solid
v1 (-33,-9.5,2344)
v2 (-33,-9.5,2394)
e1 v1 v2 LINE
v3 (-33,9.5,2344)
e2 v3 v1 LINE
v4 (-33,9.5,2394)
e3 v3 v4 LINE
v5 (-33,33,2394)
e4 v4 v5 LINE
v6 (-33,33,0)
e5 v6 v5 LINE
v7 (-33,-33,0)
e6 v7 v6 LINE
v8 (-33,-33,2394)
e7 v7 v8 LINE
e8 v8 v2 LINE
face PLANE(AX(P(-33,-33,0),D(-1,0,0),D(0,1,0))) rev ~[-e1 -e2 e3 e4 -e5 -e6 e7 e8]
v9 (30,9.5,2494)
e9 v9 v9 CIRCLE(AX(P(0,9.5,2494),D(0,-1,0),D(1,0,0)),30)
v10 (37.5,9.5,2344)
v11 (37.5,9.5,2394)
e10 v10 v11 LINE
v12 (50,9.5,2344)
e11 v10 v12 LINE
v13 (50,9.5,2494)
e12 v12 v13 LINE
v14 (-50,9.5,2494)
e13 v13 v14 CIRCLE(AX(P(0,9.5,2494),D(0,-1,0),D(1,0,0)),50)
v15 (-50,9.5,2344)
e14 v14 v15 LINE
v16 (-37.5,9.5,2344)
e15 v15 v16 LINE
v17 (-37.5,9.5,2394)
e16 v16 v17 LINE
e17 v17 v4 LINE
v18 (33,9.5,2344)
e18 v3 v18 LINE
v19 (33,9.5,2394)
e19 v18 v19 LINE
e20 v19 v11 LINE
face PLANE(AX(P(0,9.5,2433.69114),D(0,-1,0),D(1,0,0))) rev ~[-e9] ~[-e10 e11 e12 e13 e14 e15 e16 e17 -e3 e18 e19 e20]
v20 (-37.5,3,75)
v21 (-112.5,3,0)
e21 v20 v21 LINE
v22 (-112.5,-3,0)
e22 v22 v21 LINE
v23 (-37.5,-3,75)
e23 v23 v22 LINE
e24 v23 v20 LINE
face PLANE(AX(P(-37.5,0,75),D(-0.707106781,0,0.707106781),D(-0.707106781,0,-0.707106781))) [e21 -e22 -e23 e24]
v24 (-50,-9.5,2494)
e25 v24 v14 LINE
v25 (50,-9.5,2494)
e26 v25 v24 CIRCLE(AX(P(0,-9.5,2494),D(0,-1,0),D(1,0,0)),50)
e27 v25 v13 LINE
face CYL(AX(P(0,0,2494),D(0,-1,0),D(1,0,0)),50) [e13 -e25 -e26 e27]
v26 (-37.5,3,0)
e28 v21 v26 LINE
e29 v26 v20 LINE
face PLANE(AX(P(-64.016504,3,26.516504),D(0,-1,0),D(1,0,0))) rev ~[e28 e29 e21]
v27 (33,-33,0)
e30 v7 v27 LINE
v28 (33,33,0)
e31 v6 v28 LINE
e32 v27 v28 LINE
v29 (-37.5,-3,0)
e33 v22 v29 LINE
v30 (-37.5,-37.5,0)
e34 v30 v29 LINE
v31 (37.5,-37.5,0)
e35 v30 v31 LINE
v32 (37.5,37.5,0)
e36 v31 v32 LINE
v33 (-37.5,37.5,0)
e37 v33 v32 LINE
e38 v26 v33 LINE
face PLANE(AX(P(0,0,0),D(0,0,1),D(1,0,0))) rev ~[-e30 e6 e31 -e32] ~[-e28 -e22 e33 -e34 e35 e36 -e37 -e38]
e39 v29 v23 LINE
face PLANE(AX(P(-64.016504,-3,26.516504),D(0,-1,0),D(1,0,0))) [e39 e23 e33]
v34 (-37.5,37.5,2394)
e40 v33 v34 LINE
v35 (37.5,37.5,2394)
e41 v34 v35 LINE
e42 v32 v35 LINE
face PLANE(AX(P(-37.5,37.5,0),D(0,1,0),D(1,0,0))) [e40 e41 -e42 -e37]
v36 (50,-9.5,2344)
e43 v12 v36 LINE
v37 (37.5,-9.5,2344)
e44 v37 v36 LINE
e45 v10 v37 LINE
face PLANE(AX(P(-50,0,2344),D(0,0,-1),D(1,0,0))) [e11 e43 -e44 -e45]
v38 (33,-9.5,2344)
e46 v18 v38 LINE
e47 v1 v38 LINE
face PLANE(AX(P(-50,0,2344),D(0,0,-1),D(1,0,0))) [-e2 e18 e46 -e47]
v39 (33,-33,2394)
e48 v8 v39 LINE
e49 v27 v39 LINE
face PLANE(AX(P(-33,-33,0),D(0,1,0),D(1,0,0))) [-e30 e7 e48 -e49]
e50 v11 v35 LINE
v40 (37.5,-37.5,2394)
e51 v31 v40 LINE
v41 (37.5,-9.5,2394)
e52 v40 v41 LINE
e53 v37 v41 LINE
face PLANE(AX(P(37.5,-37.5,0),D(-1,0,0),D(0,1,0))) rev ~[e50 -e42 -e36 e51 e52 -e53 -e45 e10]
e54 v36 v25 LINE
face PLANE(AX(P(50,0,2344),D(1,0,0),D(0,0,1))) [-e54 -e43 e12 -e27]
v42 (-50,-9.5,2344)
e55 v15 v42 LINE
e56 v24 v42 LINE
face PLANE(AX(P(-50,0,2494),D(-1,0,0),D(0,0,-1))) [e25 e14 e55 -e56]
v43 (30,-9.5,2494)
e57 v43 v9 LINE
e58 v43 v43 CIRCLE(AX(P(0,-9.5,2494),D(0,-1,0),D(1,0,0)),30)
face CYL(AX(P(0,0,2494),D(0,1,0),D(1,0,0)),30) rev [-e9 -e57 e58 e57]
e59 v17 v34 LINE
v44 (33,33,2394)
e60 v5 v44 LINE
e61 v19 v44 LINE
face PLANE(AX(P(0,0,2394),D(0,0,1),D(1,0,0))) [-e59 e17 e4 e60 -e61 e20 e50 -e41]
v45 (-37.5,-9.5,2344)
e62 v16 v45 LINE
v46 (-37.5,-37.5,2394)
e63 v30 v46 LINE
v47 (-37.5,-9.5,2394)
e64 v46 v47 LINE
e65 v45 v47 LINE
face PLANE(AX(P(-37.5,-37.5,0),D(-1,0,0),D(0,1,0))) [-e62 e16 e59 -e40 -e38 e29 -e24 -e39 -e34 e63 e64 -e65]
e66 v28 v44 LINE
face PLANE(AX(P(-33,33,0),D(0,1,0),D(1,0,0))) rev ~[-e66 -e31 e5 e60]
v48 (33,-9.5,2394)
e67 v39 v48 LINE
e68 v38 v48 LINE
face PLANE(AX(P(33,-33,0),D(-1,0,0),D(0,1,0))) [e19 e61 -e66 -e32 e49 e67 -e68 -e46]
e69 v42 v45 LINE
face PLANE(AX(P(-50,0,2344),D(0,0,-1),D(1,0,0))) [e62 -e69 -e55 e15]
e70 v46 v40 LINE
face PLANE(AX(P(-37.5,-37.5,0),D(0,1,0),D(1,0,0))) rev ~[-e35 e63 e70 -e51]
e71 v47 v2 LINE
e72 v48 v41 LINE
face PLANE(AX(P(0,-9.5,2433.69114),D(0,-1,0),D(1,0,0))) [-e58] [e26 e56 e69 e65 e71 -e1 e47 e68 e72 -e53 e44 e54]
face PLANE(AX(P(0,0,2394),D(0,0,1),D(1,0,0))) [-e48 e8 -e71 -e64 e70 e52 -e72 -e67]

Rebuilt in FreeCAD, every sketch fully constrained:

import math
import FreeCAD as App
import Part
import Sketcher
from FreeCAD import Vector
Q = App.Units.Quantity

doc = App.newDocument("Part")
body = doc.addObject("PartDesign::Body", "Body")

sketch1 = body.newObject("Sketcher::SketchObject", "Sketch")
sketch1.AttachmentSupport = (doc.getObject("XY_Plane"), [""])
sketch1.MapMode = "FlatFace"
sketch1.addGeometry([
    Part.LineSegment(Vector(-38, 38, 0), Vector(-38, -38, 0)),
    Part.LineSegment(Vector(-38, -38, 0), Vector(38, -38, 0)),
    Part.LineSegment(Vector(38, -38, 0), Vector(38, 38, 0)),
    Part.LineSegment(Vector(38, 38, 0), Vector(-38, 38, 0)),
    Part.LineSegment(Vector(33, -33, 0), Vector(-33, -33, 0)),
    Part.LineSegment(Vector(-33, -33, 0), Vector(-33, 33, 0)),
    Part.LineSegment(Vector(-33, 33, 0), Vector(33, 33, 0)),
    Part.LineSegment(Vector(33, 33, 0), Vector(33, -33, 0)),
], False)
sketch1.addConstraint([
    Sketcher.Constraint("Coincident", 0, 2, 1, 1),
    Sketcher.Constraint("Coincident", 1, 2, 2, 1),
    Sketcher.Constraint("Coincident", 2, 2, 3, 1),
    Sketcher.Constraint("Coincident", 3, 2, 0, 1),
    Sketcher.Constraint("Coincident", 4, 2, 5, 1),
    Sketcher.Constraint("Coincident", 5, 2, 6, 1),
    Sketcher.Constraint("Coincident", 6, 2, 7, 1),
    Sketcher.Constraint("Coincident", 7, 2, 4, 1),
    Sketcher.Constraint("Vertical", 0),
    Sketcher.Constraint("Horizontal", 1),
    Sketcher.Constraint("Vertical", 2),
    Sketcher.Constraint("Horizontal", 3),
    Sketcher.Constraint("Horizontal", 4),
    Sketcher.Constraint("Vertical", 5),
    Sketcher.Constraint("Horizontal", 6),
    Sketcher.Constraint("Vertical", 7),
    Sketcher.Constraint("Symmetric", 0, 2, 2, 2, -1, 1),
    Sketcher.Constraint("Symmetric", 4, 2, 6, 2, -1, 1),
    Sketcher.Constraint("Equal", 3, 0),
    Sketcher.Constraint("Equal", 6, 5),
    Sketcher.Constraint("DistanceX", 1, 1, 1, 2, Q("75 mm")),
    Sketcher.Constraint("DistanceX", 4, 2, 4, 1, Q("66 mm")),
])
pad1 = body.newObject("PartDesign::Pad", "Pad")
pad1.Profile = sketch1
pad1.Length = 2394

sketch2 = body.newObject("Sketcher::SketchObject", "Sketch001")
sketch2.AttachmentSupport = (doc.getObject("XZ_Plane"), [""])
sketch2.MapMode = "FlatFace"
sketch2.addGeometry([
    Part.LineSegment(Vector(-50, 2494, 0), Vector(-50, 2344, 0)),
    Part.LineSegment(Vector(-50, 2344, 0), Vector(50, 2344, 0)),
    Part.LineSegment(Vector(50, 2344, 0), Vector(50, 2494, 0)),
    Part.ArcOfCircle(Part.Circle(Vector(0, 2494, 0), Vector(0, 0, 1), 50), math.radians(0), math.radians(180)),
    Part.Circle(Vector(0, 2494, 0), Vector(0, 0, 1), 30),
], False)
sketch2.addConstraint([
    Sketcher.Constraint("Coincident", 0, 2, 1, 1),
    Sketcher.Constraint("Coincident", 1, 2, 2, 1),
    Sketcher.Constraint("Tangent", 2, 2, 3, 1),
    Sketcher.Constraint("Tangent", 3, 2, 0, 1),
    Sketcher.Constraint("Vertical", 0),
    Sketcher.Constraint("Horizontal", 1),
    Sketcher.Constraint("Vertical", 2),
    Sketcher.Constraint("Coincident", 4, 3, 3, 3),
    Sketcher.Constraint("PointOnObject", 3, 3, -2),
    Sketcher.Constraint("Diameter", 4, Q("60 mm")),
    Sketcher.Constraint("Radius", 3, Q("50 mm")),
    Sketcher.Constraint("DistanceY", 0, 2, 0, 1, Q("150 mm")),
    Sketcher.Constraint("DistanceY", -1, 1, 3, 3, Q("2494 mm")),
])
pad2 = body.newObject("PartDesign::Pad", "Pad001")
pad2.Profile = sketch2
pad2.Length = 19
pad2.Midplane = True

sketch3 = body.newObject("Sketcher::SketchObject", "Sketch002")
sketch3.AttachmentSupport = (doc.getObject("XZ_Plane"), [""])
sketch3.MapMode = "FlatFace"
sketch3.addGeometry([
    Part.LineSegment(Vector(-112, 0, 0), Vector(-38, 0, 0)),
    Part.LineSegment(Vector(-38, 0, 0), Vector(-38, 75, 0)),
    Part.LineSegment(Vector(-38, 75, 0), Vector(-112, 0, 0)),
], False)
sketch3.addConstraint([
    Sketcher.Constraint("Coincident", 0, 2, 1, 1),
    Sketcher.Constraint("Coincident", 1, 2, 2, 1),
    Sketcher.Constraint("Coincident", 2, 2, 0, 1),
    Sketcher.Constraint("Horizontal", 0),
    Sketcher.Constraint("Vertical", 1),
    Sketcher.Constraint("PointOnObject", 0, 2, -1),
    Sketcher.Constraint("Equal", 0, 1),
    Sketcher.Constraint("DistanceX", 0, 1, 0, 2, Q("75 mm")),
    Sketcher.Constraint("DistanceX", 0, 2, -1, 1, Q("37.5 mm")),
])
pad3 = body.newObject("PartDesign::Pad", "Pad002")
pad3.Profile = sketch3
pad3.Length = 6
pad3.Midplane = True

doc.recompute()
